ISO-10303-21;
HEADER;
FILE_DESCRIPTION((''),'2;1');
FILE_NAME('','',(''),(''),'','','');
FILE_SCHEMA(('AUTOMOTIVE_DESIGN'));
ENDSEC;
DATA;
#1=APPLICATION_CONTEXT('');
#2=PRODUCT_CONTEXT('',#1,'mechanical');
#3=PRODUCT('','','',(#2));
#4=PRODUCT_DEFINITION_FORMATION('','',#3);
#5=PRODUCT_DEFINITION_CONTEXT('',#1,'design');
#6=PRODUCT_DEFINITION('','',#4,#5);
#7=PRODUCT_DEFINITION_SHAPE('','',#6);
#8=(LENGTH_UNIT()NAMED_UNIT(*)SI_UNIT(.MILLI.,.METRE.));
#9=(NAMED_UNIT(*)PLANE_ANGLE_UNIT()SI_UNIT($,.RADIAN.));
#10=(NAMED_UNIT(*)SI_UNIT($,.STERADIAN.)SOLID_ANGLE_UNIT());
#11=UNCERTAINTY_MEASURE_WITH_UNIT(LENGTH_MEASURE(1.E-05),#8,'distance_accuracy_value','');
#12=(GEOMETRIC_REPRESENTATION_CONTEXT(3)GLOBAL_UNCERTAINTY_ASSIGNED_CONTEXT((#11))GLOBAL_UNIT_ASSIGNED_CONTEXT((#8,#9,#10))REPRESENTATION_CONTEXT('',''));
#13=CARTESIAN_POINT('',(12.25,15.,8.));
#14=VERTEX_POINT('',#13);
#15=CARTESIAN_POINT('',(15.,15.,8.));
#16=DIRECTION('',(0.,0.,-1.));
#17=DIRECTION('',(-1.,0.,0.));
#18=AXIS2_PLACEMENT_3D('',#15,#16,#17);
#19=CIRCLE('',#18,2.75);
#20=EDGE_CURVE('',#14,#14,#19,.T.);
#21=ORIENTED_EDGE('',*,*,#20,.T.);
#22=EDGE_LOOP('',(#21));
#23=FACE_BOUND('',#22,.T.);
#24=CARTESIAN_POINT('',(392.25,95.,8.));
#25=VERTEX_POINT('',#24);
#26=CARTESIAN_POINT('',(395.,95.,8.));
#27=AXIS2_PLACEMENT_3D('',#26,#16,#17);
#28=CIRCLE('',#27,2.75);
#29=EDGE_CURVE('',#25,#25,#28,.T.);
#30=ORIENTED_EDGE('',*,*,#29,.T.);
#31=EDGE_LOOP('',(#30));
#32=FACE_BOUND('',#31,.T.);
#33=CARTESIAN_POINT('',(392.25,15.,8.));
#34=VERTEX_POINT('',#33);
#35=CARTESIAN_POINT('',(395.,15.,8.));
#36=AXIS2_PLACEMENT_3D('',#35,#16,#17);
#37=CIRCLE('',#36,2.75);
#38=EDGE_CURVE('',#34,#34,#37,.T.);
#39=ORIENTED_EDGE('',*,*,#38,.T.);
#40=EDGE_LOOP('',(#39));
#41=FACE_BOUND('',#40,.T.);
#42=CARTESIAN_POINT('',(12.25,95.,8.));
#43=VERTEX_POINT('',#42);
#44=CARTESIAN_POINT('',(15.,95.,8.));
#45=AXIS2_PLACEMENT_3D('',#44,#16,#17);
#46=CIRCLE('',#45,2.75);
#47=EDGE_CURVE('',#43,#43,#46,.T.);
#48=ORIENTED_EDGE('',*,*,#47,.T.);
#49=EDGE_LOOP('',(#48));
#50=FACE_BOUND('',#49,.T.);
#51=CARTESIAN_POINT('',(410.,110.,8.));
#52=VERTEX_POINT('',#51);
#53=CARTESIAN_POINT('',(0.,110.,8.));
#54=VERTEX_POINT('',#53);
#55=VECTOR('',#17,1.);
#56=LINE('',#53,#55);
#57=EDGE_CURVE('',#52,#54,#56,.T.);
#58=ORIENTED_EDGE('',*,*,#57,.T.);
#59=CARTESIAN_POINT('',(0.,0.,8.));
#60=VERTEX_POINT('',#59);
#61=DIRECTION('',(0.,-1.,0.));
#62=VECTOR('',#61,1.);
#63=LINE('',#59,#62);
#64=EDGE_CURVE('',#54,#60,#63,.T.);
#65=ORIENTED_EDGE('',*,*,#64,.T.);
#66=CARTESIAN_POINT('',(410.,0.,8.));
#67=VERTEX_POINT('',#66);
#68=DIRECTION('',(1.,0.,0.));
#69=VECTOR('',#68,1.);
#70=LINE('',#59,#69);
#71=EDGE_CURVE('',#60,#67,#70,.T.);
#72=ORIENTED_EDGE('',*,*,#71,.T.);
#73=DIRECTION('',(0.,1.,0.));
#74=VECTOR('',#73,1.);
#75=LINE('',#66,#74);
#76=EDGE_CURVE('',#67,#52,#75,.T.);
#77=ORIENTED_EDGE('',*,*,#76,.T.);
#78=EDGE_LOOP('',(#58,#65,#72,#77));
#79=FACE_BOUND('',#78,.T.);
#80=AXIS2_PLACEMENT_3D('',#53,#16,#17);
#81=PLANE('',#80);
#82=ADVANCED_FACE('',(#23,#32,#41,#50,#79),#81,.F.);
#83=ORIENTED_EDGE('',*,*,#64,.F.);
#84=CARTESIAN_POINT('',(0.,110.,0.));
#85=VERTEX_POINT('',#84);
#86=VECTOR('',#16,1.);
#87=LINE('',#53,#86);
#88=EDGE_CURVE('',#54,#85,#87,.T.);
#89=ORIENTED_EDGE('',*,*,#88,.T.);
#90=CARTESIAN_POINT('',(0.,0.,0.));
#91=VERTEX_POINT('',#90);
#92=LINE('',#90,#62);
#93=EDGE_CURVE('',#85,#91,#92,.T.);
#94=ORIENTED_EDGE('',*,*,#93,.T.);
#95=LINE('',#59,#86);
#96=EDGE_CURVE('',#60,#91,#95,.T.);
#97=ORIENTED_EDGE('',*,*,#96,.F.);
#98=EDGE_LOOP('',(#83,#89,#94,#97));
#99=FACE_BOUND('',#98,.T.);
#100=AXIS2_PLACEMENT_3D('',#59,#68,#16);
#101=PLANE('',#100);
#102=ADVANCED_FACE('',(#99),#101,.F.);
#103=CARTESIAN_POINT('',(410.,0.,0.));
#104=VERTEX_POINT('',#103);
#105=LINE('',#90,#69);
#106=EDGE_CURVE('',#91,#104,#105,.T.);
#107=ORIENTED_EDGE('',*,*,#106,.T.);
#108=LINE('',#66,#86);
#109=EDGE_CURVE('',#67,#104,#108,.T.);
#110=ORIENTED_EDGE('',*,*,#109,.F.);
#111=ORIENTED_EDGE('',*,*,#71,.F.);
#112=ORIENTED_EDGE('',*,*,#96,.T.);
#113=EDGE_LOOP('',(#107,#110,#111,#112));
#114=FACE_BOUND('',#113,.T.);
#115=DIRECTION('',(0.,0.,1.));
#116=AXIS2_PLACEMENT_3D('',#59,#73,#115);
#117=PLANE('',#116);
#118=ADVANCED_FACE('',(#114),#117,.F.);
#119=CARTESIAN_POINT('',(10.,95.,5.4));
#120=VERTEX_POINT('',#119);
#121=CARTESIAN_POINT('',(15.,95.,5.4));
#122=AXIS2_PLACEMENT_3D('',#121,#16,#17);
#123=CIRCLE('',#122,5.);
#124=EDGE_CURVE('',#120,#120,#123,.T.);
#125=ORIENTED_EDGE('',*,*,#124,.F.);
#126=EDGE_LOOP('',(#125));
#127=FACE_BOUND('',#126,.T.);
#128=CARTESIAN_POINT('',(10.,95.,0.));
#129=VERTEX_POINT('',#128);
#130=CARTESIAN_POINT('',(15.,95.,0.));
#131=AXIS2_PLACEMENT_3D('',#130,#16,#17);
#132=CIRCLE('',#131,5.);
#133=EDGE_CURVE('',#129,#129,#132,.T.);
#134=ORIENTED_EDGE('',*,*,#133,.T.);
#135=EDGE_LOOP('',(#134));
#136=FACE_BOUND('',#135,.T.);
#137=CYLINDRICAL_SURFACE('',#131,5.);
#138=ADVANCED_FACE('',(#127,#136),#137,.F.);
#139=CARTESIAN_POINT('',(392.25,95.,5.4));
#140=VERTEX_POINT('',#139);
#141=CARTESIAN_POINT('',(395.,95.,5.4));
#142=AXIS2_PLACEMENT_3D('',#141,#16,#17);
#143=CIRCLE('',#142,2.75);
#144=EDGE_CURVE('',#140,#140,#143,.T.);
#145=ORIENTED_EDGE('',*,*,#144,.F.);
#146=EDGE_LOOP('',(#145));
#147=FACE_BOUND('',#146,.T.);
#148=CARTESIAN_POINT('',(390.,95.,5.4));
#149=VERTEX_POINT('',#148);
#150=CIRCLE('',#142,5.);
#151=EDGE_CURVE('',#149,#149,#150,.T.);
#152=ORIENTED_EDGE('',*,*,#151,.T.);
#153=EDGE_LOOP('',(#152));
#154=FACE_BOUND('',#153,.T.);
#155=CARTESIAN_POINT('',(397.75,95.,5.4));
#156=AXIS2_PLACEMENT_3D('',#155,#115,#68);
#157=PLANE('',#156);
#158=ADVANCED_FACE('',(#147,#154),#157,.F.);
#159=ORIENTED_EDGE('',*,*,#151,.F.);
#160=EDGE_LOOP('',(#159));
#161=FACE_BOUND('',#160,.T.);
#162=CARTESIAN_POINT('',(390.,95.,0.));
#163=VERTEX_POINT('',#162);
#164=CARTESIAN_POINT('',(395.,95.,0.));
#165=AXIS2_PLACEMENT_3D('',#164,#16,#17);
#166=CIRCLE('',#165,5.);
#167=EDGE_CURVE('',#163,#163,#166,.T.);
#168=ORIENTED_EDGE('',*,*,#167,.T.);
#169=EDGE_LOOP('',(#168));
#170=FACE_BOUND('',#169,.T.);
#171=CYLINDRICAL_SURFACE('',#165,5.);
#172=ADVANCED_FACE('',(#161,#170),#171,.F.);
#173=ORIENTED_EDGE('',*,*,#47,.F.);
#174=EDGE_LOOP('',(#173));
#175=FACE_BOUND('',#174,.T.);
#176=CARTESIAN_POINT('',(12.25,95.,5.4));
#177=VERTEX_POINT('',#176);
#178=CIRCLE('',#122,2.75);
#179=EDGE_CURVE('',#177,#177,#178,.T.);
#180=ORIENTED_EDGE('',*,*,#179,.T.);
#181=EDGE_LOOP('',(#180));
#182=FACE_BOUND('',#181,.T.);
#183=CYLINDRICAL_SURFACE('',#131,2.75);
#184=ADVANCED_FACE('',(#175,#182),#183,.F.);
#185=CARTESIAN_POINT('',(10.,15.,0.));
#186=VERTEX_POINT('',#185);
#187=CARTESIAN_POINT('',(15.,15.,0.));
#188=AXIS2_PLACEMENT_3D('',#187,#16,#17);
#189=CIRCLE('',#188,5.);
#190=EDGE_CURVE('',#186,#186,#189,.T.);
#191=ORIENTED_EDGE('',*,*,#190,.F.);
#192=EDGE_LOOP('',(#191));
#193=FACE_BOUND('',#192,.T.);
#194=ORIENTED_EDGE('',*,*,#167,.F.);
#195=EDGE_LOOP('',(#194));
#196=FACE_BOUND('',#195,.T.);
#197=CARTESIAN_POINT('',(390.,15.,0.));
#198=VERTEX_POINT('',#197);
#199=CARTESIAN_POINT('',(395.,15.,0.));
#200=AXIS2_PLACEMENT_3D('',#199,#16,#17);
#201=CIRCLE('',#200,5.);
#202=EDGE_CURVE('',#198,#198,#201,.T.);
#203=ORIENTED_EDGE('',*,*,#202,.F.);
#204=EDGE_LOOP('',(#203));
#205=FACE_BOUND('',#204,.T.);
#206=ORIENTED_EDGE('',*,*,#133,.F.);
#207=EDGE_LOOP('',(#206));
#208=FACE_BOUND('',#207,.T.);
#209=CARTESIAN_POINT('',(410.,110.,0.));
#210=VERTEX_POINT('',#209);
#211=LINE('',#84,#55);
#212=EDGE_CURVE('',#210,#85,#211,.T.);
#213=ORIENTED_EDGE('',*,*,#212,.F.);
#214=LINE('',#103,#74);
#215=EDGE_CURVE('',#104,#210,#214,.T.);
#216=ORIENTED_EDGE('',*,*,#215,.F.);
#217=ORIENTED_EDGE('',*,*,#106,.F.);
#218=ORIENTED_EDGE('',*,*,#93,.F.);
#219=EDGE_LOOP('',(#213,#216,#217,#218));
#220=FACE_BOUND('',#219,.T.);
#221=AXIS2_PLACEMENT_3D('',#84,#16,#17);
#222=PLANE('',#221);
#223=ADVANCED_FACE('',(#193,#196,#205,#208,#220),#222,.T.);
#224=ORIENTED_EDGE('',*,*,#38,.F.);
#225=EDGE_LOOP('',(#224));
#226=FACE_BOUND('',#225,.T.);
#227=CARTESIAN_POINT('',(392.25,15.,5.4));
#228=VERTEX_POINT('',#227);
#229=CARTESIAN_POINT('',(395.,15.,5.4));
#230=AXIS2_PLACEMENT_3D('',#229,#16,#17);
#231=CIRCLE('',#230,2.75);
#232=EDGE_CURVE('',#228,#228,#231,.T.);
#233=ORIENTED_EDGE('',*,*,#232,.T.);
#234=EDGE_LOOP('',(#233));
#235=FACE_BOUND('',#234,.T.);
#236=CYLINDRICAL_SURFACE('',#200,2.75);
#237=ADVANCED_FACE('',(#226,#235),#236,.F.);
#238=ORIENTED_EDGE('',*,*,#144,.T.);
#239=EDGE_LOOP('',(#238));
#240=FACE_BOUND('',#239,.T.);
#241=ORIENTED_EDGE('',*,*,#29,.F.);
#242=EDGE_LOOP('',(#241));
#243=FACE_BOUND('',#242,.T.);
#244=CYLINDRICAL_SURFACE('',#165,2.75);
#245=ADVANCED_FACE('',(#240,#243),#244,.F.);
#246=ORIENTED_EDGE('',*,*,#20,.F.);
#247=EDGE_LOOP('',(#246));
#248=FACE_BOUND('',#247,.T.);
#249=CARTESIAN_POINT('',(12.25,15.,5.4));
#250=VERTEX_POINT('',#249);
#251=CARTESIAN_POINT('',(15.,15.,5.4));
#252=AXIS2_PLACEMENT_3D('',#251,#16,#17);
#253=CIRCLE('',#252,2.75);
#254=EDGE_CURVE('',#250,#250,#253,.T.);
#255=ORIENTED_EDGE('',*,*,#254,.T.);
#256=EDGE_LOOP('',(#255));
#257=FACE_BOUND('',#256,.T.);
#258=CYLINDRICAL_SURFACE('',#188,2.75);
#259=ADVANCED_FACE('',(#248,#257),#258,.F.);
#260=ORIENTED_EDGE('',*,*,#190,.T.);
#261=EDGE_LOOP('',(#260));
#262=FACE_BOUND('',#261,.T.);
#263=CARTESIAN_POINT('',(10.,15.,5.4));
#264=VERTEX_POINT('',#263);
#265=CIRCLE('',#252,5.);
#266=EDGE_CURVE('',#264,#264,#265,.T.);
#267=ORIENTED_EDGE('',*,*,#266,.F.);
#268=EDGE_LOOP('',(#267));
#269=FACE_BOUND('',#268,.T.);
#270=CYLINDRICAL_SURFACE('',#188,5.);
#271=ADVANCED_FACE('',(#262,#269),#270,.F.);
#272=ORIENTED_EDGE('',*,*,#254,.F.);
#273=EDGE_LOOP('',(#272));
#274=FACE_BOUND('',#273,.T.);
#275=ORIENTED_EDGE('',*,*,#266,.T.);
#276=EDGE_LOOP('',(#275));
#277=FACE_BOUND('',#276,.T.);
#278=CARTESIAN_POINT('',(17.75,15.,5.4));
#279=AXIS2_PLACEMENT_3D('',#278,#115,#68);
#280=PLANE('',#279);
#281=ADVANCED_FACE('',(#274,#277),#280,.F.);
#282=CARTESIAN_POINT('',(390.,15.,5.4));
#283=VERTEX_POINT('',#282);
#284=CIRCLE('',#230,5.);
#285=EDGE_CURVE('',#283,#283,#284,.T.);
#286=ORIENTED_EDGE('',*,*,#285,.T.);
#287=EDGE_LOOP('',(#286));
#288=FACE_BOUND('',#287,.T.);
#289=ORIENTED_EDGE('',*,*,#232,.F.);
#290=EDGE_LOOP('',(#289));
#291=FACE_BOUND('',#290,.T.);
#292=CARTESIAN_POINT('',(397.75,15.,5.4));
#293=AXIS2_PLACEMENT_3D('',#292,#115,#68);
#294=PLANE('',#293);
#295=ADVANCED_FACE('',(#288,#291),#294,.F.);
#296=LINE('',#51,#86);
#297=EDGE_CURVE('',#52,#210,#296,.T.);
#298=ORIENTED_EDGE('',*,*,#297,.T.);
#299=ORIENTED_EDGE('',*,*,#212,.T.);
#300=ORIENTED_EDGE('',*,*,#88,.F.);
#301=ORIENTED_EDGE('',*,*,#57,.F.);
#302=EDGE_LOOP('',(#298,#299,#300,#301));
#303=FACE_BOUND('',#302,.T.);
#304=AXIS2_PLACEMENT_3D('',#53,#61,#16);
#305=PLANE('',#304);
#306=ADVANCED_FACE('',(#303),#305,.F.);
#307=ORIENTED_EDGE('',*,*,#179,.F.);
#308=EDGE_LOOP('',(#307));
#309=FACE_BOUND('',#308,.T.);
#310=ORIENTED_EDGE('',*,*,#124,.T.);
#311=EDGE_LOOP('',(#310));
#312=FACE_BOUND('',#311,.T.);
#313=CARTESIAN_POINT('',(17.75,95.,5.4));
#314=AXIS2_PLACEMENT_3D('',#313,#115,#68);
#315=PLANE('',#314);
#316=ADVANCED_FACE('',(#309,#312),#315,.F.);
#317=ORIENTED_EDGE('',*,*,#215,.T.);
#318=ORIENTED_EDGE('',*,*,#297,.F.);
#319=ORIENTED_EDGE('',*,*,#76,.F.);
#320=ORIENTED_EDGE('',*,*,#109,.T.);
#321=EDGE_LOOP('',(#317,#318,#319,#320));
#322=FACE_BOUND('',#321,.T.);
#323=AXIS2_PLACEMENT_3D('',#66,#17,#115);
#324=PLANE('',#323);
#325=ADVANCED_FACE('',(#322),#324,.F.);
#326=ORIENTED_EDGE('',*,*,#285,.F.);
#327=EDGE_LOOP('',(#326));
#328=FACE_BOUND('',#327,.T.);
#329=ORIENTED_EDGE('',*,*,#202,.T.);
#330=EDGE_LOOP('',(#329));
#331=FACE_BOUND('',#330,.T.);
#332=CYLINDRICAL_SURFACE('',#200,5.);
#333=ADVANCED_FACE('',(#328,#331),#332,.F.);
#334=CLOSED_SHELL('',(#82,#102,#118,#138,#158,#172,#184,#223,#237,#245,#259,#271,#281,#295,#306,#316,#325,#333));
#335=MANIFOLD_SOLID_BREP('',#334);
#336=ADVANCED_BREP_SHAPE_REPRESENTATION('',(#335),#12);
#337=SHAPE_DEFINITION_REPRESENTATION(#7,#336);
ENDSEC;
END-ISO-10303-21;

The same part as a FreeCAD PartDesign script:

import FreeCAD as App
import Part
import Sketcher
from FreeCAD import Vector

doc = App.newDocument("Part")
body = doc.addObject("PartDesign::Body", "Body")

# Sketch on XY plane
sketch1 = body.newObject("Sketcher::SketchObject", "Sketch")
sketch1.AttachmentSupport = (doc.getObject("XY_Plane"), [""])
sketch1.MapMode = "FlatFace"
sketch1.addGeometry([
    Part.LineSegment(Vector(0, 110, 0), Vector(0, 0, 0)),
    Part.LineSegment(Vector(0, 0, 0), Vector(410, 0, 0)),
    Part.LineSegment(Vector(410, 0, 0), Vector(410, 110, 0)),
    Part.LineSegment(Vector(410, 110, 0), Vector(0, 110, 0)),
], False)
sketch1.addConstraint([
    Sketcher.Constraint("Coincident", 0, 2, 1, 1),
    Sketcher.Constraint("Coincident", 1, 2, 2, 1),
    Sketcher.Constraint("Coincident", 2, 2, 3, 1),
    Sketcher.Constraint("Coincident", 3, 2, 0, 1),
    Sketcher.Constraint("Vertical", 0),
    Sketcher.Constraint("Horizontal", 1),
    Sketcher.Constraint("Vertical", 2),
    Sketcher.Constraint("Horizontal", 3),
    Sketcher.Constraint("Coincident", 0, 2, -1, 1),
    Sketcher.Constraint("DistanceX", 1, 1, 1, 2, 410.0),
    Sketcher.Constraint("DistanceY", 0, 2, 0, 1, 110.0),
])
pad1 = body.newObject("PartDesign::Pad", "Pad")
pad1.Profile = sketch1
pad1.Length = 8

# Sketch on XY plane
sketch2 = body.newObject("Sketcher::SketchObject", "Sketch001")
sketch2.AttachmentSupport = (doc.getObject("XY_Plane"), [""])
sketch2.MapMode = "FlatFace"
sketch2.addGeometry([
    Part.Circle(Vector(395, 95, 0), Vector(0, 0, 1), 2.8),
    Part.Circle(Vector(15, 95, 0), Vector(0, 0, 1), 2.8),
    Part.Circle(Vector(15, 15, 0), Vector(0, 0, 1), 2.8),
    Part.Circle(Vector(395, 15, 0), Vector(0, 0, 1), 2.8),
], False)
sketch2.addConstraint([
    Sketcher.Constraint("Equal", 0, 1),
    Sketcher.Constraint("Equal", 1, 2),
    Sketcher.Constraint("Equal", 2, 3),
    Sketcher.Constraint("Horizontal", 0, 3, 1, 3),
    Sketcher.Constraint("Horizontal", 2, 3, 3, 3),
    Sketcher.Constraint("Vertical", 1, 3, 2, 3),
    Sketcher.Constraint("Vertical", 0, 3, 3, 3),
    Sketcher.Constraint("Diameter", 0, 5.5),
    Sketcher.Constraint("DistanceX", -1, 1, 0, 3, 395.0),
    Sketcher.Constraint("DistanceY", -1, 1, 0, 3, 95.0),
    Sketcher.Constraint("DistanceX", -1, 1, 1, 3, 15.0),
    Sketcher.Constraint("DistanceY", -1, 1, 2, 3, 15.0),
])
doc.recompute()
hole = body.newObject("PartDesign::Hole", "Hole")
hole.Profile = sketch2
hole.ThreadType = "None"
hole.Diameter = 5.5
hole.DepthType = "ThroughAll"
hole.HoleCutType = "Counterbore"
hole.HoleCutDiameter = 10
hole.HoleCutDepth = 5.4
hole.Reversed = True

doc.recompute()
